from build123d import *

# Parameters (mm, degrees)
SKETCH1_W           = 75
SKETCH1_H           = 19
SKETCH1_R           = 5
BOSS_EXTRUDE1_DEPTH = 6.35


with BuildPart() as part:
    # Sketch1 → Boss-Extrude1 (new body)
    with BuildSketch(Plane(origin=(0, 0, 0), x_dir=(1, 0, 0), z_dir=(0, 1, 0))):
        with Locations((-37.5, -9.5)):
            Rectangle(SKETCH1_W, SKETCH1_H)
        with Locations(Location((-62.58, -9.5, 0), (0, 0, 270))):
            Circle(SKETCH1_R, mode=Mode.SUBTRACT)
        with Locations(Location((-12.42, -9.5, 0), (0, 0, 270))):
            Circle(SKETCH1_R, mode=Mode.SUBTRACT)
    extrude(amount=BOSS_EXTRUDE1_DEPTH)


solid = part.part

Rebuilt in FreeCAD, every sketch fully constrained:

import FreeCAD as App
import Part
import Sketcher
from FreeCAD import Vector


def add_polygon(sketch, points):
    """Adds a closed chain of lines whose ends are joined by coincident constraints."""
    first, n = sketch.GeometryCount, len(points)
    for a, b in zip(points, points[1:] + points[:1]):
        sketch.addGeometry(Part.LineSegment(App.Vector(*a, 0), App.Vector(*b, 0)), False)
    for i in range(n):
        sketch.addConstraint(Sketcher.Constraint("Coincident", first + i, 2, first + (i + 1) % n, 1))

doc = App.newDocument("Part")
body = doc.addObject("PartDesign::Body", "Body")

# Sketch on XZ plane
sketch1 = body.newObject("Sketcher::SketchObject", "Sketch")
sketch1.AttachmentSupport = (doc.getObject("XZ_Plane"), [""])
sketch1.MapMode = "FlatFace"
add_polygon(sketch1, [(-75, 0), (-75, 19), (0, 19), (0, 0)])  # lines 0-3
sketch1.addGeometry(Part.Circle(Vector(-62.58, 9.5, 0), Vector(0, 0, 1), 5), False)  # 4
sketch1.addGeometry(Part.Circle(Vector(-12.42, 9.5, 0), Vector(0, 0, 1), 5), False)  # 5
sketch1.addConstraint(Sketcher.Constraint("Vertical", 0))
sketch1.addConstraint(Sketcher.Constraint("Horizontal", 1))
sketch1.addConstraint(Sketcher.Constraint("Vertical", 2))
sketch1.addConstraint(Sketcher.Constraint("Horizontal", 3))
sketch1.addConstraint(Sketcher.Constraint("Coincident", 2, 2, -1, 1))
sketch1.addConstraint(Sketcher.Constraint("Equal", 4, 5))
sketch1.addConstraint(Sketcher.Constraint("Horizontal", 4, 3, 5, 3))
sketch1.addConstraint(Sketcher.Constraint("Diameter", 4, 10.0))
sketch1.addConstraint(Sketcher.Constraint("DistanceX", 1, 1, 1, 2, 75.0))
sketch1.addConstraint(Sketcher.Constraint("DistanceY", 0, 1, 0, 2, 19.0))
sketch1.addConstraint(Sketcher.Constraint("DistanceY", -1, 1, 4, 3, 9.5))
sketch1.addConstraint(Sketcher.Constraint("DistanceX", 4, 3, -1, 1, 62.58))
sketch1.addConstraint(Sketcher.Constraint("DistanceX", 5, 3, -1, 1, 12.42))
pad1 = body.newObject("PartDesign::Pad", "Pad")
pad1.Profile = sketch1
pad1.Length = 6.35
pad1.Reversed = True

doc.recompute()
